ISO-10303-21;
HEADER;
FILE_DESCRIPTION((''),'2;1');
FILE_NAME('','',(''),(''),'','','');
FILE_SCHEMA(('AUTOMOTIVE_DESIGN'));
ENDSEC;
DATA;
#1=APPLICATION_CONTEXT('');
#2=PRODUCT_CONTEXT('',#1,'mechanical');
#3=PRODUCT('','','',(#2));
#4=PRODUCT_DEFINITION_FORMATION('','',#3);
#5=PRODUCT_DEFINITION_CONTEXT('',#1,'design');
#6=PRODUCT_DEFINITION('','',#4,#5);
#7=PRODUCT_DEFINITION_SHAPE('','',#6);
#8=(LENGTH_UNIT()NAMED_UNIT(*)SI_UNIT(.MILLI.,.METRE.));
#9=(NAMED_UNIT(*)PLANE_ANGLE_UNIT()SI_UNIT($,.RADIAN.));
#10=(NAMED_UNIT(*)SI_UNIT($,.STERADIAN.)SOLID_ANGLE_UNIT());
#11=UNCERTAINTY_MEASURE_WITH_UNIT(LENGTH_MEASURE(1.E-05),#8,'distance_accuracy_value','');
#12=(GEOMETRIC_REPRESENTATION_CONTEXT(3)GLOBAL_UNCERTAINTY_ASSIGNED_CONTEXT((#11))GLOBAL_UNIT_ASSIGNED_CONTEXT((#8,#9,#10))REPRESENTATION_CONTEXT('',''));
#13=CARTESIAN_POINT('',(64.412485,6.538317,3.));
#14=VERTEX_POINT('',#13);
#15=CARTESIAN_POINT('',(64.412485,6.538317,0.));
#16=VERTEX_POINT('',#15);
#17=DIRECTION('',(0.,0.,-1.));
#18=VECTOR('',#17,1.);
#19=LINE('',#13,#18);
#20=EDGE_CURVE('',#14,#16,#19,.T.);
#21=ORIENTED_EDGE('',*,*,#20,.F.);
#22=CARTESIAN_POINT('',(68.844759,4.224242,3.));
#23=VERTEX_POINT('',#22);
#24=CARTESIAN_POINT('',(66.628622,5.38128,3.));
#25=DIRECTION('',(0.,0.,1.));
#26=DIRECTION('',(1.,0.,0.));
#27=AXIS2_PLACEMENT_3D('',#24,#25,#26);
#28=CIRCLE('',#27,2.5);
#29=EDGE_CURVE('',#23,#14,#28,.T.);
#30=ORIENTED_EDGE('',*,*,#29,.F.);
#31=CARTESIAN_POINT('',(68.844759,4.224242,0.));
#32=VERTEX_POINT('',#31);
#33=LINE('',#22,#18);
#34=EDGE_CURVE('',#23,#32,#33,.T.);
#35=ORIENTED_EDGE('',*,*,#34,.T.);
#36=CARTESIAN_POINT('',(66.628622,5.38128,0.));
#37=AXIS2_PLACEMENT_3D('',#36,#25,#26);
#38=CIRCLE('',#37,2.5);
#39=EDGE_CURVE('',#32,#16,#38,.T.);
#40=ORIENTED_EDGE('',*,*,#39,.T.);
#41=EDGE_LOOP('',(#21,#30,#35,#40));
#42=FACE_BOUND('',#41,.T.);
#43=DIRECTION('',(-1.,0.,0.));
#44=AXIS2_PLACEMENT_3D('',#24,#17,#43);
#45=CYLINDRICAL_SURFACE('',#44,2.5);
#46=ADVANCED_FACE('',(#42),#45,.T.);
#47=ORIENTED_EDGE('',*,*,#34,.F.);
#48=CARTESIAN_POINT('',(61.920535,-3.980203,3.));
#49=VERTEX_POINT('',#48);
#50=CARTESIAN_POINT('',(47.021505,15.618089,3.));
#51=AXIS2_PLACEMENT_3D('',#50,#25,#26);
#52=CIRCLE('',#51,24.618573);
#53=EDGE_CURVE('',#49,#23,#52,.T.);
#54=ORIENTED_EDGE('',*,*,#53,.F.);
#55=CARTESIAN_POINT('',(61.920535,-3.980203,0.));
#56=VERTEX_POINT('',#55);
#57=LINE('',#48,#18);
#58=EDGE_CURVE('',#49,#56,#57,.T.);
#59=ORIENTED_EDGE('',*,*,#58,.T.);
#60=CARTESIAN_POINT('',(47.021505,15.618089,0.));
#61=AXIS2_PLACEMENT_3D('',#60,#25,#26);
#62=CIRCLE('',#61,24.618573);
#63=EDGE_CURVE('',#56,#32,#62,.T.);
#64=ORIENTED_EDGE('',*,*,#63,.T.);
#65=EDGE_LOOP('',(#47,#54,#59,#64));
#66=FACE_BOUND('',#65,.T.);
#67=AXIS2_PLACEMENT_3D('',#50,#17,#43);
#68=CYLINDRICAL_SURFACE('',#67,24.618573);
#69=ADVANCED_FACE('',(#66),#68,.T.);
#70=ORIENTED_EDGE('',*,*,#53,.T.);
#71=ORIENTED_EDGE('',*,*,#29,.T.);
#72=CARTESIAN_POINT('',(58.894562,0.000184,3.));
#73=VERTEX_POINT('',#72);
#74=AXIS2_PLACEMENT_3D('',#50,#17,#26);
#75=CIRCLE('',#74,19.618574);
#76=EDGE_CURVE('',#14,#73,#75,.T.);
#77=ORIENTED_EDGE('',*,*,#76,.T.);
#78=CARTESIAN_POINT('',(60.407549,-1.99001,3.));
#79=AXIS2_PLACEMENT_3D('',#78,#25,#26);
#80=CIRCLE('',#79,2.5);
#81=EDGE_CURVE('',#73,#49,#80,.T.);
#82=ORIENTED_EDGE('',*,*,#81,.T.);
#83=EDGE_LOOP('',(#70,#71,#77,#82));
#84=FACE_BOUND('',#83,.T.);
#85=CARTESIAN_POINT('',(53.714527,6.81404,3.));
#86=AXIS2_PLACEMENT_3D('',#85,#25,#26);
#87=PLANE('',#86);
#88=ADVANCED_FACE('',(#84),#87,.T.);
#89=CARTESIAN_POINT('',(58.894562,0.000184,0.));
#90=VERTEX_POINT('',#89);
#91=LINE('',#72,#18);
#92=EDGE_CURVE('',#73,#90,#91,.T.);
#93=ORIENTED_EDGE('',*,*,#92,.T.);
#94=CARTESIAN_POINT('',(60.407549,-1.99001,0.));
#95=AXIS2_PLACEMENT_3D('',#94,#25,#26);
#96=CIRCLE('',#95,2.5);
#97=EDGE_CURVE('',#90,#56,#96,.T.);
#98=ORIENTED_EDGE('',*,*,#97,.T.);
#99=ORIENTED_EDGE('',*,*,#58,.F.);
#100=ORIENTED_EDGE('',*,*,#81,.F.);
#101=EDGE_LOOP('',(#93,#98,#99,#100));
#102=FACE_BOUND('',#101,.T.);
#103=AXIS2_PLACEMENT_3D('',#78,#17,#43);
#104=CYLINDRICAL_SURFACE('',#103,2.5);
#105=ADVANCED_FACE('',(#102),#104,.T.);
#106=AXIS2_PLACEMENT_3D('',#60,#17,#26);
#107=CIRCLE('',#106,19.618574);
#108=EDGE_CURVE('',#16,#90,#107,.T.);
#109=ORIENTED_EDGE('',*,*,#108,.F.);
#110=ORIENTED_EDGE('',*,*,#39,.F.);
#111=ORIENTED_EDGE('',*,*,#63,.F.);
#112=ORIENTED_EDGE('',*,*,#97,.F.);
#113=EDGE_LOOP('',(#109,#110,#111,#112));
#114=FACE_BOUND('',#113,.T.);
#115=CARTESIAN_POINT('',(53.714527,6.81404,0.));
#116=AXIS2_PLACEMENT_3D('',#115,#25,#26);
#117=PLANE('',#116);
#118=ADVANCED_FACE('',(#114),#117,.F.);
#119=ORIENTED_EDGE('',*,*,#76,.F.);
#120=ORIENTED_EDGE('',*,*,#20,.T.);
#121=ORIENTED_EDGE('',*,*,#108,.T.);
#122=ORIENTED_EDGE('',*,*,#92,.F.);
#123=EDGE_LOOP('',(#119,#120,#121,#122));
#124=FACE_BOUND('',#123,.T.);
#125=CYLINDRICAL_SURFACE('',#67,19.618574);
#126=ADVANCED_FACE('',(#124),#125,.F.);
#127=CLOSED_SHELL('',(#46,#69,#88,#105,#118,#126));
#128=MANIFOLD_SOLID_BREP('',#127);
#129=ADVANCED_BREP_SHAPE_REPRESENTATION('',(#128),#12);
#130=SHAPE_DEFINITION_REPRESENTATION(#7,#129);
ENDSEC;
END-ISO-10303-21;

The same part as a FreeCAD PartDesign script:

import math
import FreeCAD as App
import Part
import Sketcher

V = App.Vector

doc = App.newDocument("Part")
params = doc.addObject("Spreadsheet::Sheet", "Params")
for row, (alias, value) in enumerate([
    ("sketch1_radius", "2.5 mm"),
    ("pad1_length", "3 mm"),
], start=1):
    params.set(f"A{row}", alias)
    params.set(f"B{row}", "=" + value)
    params.setAlias(f"B{row}", alias)

body = doc.addObject("PartDesign::Body", "Body")

sketch1 = body.newObject("Sketcher::SketchObject", "Sketch")
sketch1.AttachmentSupport = (doc.getObject("XY_Plane"), [""])
sketch1.MapMode = "FlatFace"
sketch1.addGeometry([
    Part.ArcOfCircle(Part.Circle(V(47, 15.6, 0), V(0, 0, 1), 24.6), math.radians(-53), math.radians(-28)),
    Part.ArcOfCircle(Part.Circle(V(66.6, 5.4, 0), V(0, 0, 1), 2.5), math.radians(-28), math.radians(152)),
    Part.ArcOfCircle(Part.Circle(V(47, 15.6, 0), V(0, 0, 1), 19.6), math.radians(-53), math.radians(-28)),
    Part.ArcOfCircle(Part.Circle(V(60.4, -2, 0), V(0, 0, 1), 2.5), math.radians(127), math.radians(307)),
], False)
sketch1.addConstraint([
    Sketcher.Constraint("Tangent", 0, 2, 1, 1),
    Sketcher.Constraint("Tangent", 1, 2, 2, 2),
    Sketcher.Constraint("Tangent", 2, 1, 3, 1),
    Sketcher.Constraint("Tangent", 3, 2, 0, 1),
    Sketcher.Constraint("Coincident", 2, 3, 0, 3),
    Sketcher.Constraint("Radius", 1, 2.5),
    Sketcher.Constraint("Radius", 0, 24.618573),
    Sketcher.Constraint("DistanceY", 3, 3, 2, 3, 17.608098),
    Sketcher.Constraint("DistanceY", -1, 1, 0, 3, 15.618089),
    Sketcher.Constraint("DistanceX", -1, 1, 1, 3, 66.628622),
    Sketcher.Constraint("DistanceY", -1, 1, 1, 3, 5.38128),
])
sketch1.setExpression("Constraints[5]", "Params.sketch1_radius")
pad1 = body.newObject("PartDesign::Pad", "Pad")
pad1.Profile = sketch1
pad1.setExpression("Length", "Params.pad1_length")

doc.recompute()
